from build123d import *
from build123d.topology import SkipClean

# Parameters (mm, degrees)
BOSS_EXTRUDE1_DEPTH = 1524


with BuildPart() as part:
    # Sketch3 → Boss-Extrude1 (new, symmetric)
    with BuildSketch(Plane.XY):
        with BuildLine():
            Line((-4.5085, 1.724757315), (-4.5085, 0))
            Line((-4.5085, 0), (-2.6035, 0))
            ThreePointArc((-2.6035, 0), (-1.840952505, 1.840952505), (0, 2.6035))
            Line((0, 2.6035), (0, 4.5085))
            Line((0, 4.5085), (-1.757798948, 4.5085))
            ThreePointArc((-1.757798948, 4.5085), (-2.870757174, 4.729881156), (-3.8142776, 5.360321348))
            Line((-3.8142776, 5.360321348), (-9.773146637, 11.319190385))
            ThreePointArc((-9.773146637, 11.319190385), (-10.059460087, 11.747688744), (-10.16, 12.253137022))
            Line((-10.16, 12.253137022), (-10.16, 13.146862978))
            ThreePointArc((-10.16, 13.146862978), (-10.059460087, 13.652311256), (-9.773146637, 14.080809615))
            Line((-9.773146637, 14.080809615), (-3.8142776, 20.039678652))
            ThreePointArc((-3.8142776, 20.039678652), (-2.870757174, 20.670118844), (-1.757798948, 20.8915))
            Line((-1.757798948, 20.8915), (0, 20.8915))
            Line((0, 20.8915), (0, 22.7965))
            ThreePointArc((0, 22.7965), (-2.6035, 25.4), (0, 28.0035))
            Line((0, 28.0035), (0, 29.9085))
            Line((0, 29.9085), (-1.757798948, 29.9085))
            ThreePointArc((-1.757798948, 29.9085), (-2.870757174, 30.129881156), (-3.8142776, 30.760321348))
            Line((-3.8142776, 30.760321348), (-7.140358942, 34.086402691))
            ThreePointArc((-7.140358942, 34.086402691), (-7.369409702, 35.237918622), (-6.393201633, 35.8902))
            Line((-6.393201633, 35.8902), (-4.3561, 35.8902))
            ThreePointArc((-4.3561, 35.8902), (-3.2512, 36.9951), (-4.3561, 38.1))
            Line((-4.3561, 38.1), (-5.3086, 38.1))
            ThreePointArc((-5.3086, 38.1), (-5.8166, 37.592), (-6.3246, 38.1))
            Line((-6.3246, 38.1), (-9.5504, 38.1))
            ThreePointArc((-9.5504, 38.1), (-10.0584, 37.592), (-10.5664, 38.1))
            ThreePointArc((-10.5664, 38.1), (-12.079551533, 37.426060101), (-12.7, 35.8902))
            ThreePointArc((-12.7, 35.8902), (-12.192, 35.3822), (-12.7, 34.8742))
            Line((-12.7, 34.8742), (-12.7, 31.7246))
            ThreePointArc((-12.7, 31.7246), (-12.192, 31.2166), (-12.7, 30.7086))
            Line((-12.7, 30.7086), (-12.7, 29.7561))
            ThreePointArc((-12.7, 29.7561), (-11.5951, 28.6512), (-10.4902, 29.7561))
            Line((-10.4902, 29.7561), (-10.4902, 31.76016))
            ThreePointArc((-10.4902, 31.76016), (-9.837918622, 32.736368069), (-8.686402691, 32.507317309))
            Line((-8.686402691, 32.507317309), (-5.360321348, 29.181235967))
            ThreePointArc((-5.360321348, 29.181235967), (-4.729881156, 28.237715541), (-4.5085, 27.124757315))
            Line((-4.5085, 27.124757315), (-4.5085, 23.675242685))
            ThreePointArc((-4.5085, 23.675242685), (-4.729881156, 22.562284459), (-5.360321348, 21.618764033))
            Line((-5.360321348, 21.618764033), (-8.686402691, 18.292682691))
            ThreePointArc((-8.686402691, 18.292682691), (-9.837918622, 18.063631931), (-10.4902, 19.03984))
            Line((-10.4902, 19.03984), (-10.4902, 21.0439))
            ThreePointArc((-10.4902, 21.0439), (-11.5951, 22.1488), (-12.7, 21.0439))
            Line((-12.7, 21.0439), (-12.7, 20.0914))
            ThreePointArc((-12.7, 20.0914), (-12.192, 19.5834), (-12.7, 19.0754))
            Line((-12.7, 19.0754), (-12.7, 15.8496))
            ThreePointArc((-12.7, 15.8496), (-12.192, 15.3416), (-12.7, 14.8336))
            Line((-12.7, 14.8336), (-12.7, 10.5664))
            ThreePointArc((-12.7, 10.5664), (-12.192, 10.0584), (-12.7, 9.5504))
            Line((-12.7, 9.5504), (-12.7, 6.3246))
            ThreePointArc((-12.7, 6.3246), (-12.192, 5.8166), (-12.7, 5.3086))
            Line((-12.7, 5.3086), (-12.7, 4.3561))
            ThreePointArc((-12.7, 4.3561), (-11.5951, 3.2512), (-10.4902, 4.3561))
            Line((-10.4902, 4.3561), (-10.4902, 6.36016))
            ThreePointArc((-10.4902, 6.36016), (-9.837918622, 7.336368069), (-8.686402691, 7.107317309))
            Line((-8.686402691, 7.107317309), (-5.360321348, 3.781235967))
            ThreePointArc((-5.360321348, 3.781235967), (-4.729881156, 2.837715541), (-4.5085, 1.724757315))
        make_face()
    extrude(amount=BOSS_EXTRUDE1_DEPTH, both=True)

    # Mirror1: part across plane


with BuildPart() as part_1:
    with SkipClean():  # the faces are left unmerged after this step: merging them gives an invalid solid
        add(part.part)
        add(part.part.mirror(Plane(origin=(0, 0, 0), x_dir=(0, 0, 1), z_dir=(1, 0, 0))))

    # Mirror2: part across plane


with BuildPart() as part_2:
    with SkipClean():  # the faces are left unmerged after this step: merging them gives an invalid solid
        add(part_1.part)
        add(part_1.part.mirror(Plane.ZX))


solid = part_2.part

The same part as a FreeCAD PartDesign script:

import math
import FreeCAD as App
import Part
import Sketcher

V = App.Vector
Q = App.Units.Quantity

doc = App.newDocument("Part")
body = doc.addObject("PartDesign::Body", "Body")

sketch1 = body.newObject("Sketcher::SketchObject", "Sketch")
sketch1.AttachmentSupport = (doc.getObject("XY_Plane"), [""])
sketch1.MapMode = "FlatFace"
sketch1.addGeometry(Part.LineSegment(V(-4.5085, 1.724757, 0), V(-4.5085, 0, 0)), False)
sketch1.addGeometry(Part.LineSegment(V(-4.5085, 0, 0), V(-2.6035, 0, 0)), False)
sketch1.addGeometry(Part.ArcOfCircle(Part.Circle(V(0, 0, 0), V(0, 0, 1), 2.6035), math.radians(90), math.radians(180)), False)
sketch1.addGeometry(Part.LineSegment(V(0, 2.6035, 0), V(0, 4.5085, 0)), False)
sketch1.addGeometry(Part.LineSegment(V(0, 4.5085, 0), V(-1.757799, 4.5085, 0)), False)
sketch1.addGeometry(Part.ArcOfCircle(Part.Circle(V(-1.757799, 7.4168, 0), V(0, 0, 1), 2.9083), math.radians(-135), math.radians(-90)), False)
sketch1.addGeometry(Part.LineSegment(V(-3.814278, 5.360321, 0), V(-9.773147, 11.31919, 0)), False)
sketch1.addGeometry(Part.ArcOfCircle(Part.Circle(V(-8.8392, 12.253137, 0), V(0, 0, 1), 1.3208), math.radians(180), math.radians(225)), False)
sketch1.addGeometry(Part.LineSegment(V(-10.16, 12.253137, 0), V(-10.16, 13.146863, 0)), False)
sketch1.addGeometry(Part.ArcOfCircle(Part.Circle(V(-8.8392, 13.146863, 0), V(0, 0, 1), 1.3208), math.radians(135), math.radians(180)), False)
sketch1.addGeometry(Part.LineSegment(V(-9.773147, 14.08081, 0), V(-3.814278, 20.039679, 0)), False)
sketch1.addGeometry(Part.ArcOfCircle(Part.Circle(V(-1.757799, 17.9832, 0), V(0, 0, 1), 2.9083), math.radians(90), math.radians(135)), False)
sketch1.addGeometry(Part.LineSegment(V(-1.757799, 20.8915, 0), V(0, 20.8915, 0)), False)
sketch1.addGeometry(Part.LineSegment(V(0, 20.8915, 0), V(0, 22.7965, 0)), False)
sketch1.addGeometry(Part.ArcOfCircle(Part.Circle(V(0, 25.4, 0), V(0, 0, 1), 2.6035), math.radians(90), math.radians(270)), False)
sketch1.addGeometry(Part.LineSegment(V(0, 28.0035, 0), V(0, 29.9085, 0)), False)
sketch1.addGeometry(Part.LineSegment(V(0, 29.9085, 0), V(-1.757799, 29.9085, 0)), False)
sketch1.addGeometry(Part.ArcOfCircle(Part.Circle(V(-1.757799, 32.8168, 0), V(0, 0, 1), 2.9083), math.radians(-135), math.radians(-90)), False)
sketch1.addGeometry(Part.LineSegment(V(-3.814278, 30.760321, 0), V(-7.140359, 34.086403, 0)), False)
sketch1.addGeometry(Part.ArcOfCircle(Part.Circle(V(-6.393202, 34.83356, 0), V(0, 0, 1), 1.05664), math.radians(90), math.radians(225)), False)
sketch1.addGeometry(Part.LineSegment(V(-6.393202, 35.8902, 0), V(-4.3561, 35.8902, 0)), False)
sketch1.addGeometry(Part.ArcOfCircle(Part.Circle(V(-4.3561, 36.9951, 0), V(0, 0, 1), 1.1049), math.radians(-90), math.radians(90)), False)
sketch1.addGeometry(Part.LineSegment(V(-4.3561, 38.1, 0), V(-5.3086, 38.1, 0)), False)
sketch1.addGeometry(Part.ArcOfCircle(Part.Circle(V(-5.8166, 38.1, 0), V(0, 0, 1), 0.508), math.radians(180), math.radians(360)), False)
sketch1.addGeometry(Part.LineSegment(V(-6.3246, 38.1, 0), V(-9.5504, 38.1, 0)), False)
sketch1.addGeometry(Part.ArcOfCircle(Part.Circle(V(-10.0584, 38.1, 0), V(0, 0, 1), 0.508), math.radians(180), math.radians(360)), False)
sketch1.addGeometry(Part.ArcOfCircle(Part.Circle(V(-10.488839, 35.8902, 0), V(0, 0, 1), 2.211161), math.radians(92.010172), math.radians(180)), False)
sketch1.addGeometry(Part.ArcOfCircle(Part.Circle(V(-12.7, 35.3822, 0), V(0, 0, 1), 0.508), math.radians(-90), math.radians(90)), False)
sketch1.addGeometry(Part.LineSegment(V(-12.7, 34.8742, 0), V(-12.7, 31.7246, 0)), False)
sketch1.addGeometry(Part.ArcOfCircle(Part.Circle(V(-12.7, 31.2166, 0), V(0, 0, 1), 0.508), math.radians(-90), math.radians(90)), False)
sketch1.addGeometry(Part.LineSegment(V(-12.7, 30.7086, 0), V(-12.7, 29.7561, 0)), False)
sketch1.addGeometry(Part.ArcOfCircle(Part.Circle(V(-11.5951, 29.7561, 0), V(0, 0, 1), 1.1049), math.radians(180), math.radians(360)), False)
sketch1.addGeometry(Part.LineSegment(V(-10.4902, 29.7561, 0), V(-10.4902, 31.76016, 0)), False)
sketch1.addGeometry(Part.ArcOfCircle(Part.Circle(V(-9.43356, 31.76016, 0), V(0, 0, 1), 1.05664), math.radians(45), math.radians(180)), False)
sketch1.addGeometry(Part.LineSegment(V(-8.686403, 32.507317, 0), V(-5.360321, 29.181236, 0)), False)
sketch1.addGeometry(Part.ArcOfCircle(Part.Circle(V(-7.4168, 27.124757, 0), V(0, 0, 1), 2.9083), math.radians(0), math.radians(45)), False)
sketch1.addGeometry(Part.LineSegment(V(-4.5085, 27.124757, 0), V(-4.5085, 23.675243, 0)), False)
sketch1.addGeometry(Part.ArcOfCircle(Part.Circle(V(-7.4168, 23.675243, 0), V(0, 0, 1), 2.9083), math.radians(-45), math.radians(0)), False)
sketch1.addGeometry(Part.LineSegment(V(-5.360321, 21.618764, 0), V(-8.686403, 18.292683, 0)), False)
sketch1.addGeometry(Part.ArcOfCircle(Part.Circle(V(-9.43356, 19.03984, 0), V(0, 0, 1), 1.05664), math.radians(180), math.radians(315)), False)
sketch1.addGeometry(Part.LineSegment(V(-10.4902, 19.03984, 0), V(-10.4902, 21.0439, 0)), False)
sketch1.addGeometry(Part.ArcOfCircle(Part.Circle(V(-11.5951, 21.0439, 0), V(0, 0, 1), 1.1049), math.radians(0), math.radians(180)), False)
sketch1.addGeometry(Part.LineSegment(V(-12.7, 21.0439, 0), V(-12.7, 20.0914, 0)), False)
sketch1.addGeometry(Part.ArcOfCircle(Part.Circle(V(-12.7, 19.5834, 0), V(0, 0, 1), 0.508), math.radians(-90), math.radians(90)), False)
sketch1.addGeometry(Part.LineSegment(V(-12.7, 19.0754, 0), V(-12.7, 15.8496, 0)), False)
sketch1.addGeometry(Part.ArcOfCircle(Part.Circle(V(-12.7, 15.3416, 0), V(0, 0, 1), 0.508), math.radians(-90), math.radians(90)), False)
sketch1.addGeometry(Part.LineSegment(V(-12.7, 14.8336, 0), V(-12.7, 10.5664, 0)), False)
sketch1.addGeometry(Part.ArcOfCircle(Part.Circle(V(-12.7, 10.0584, 0), V(0, 0, 1), 0.508), math.radians(-90), math.radians(90)), False)
sketch1.addGeometry(Part.LineSegment(V(-12.7, 9.5504, 0), V(-12.7, 6.3246, 0)), False)
sketch1.addGeometry(Part.ArcOfCircle(Part.Circle(V(-12.7, 5.8166, 0), V(0, 0, 1), 0.508), math.radians(-90), math.radians(90)), False)
sketch1.addGeometry(Part.LineSegment(V(-12.7, 5.3086, 0), V(-12.7, 4.3561, 0)), False)
sketch1.addGeometry(Part.ArcOfCircle(Part.Circle(V(-11.5951, 4.3561, 0), V(0, 0, 1), 1.1049), math.radians(180), math.radians(360)), False)
sketch1.addGeometry(Part.LineSegment(V(-10.4902, 4.3561, 0), V(-10.4902, 6.36016, 0)), False)
sketch1.addGeometry(Part.ArcOfCircle(Part.Circle(V(-9.43356, 6.36016, 0), V(0, 0, 1), 1.05664), math.radians(45), math.radians(180)), False)
sketch1.addGeometry(Part.LineSegment(V(-8.686403, 7.107317, 0), V(-5.360321, 3.781236, 0)), False)
sketch1.addGeometry(Part.ArcOfCircle(Part.Circle(V(-7.4168, 1.724757, 0), V(0, 0, 1), 2.9083), math.radians(0), math.radians(45)), False)
sketch1.addConstraint(Sketcher.Constraint("Coincident", 0, 2, 1, 1))
sketch1.addConstraint(Sketcher.Constraint("Coincident", 1, 2, 2, 2))
sketch1.addConstraint(Sketcher.Constraint("Coincident", 2, 1, 3, 1))
sketch1.addConstraint(Sketcher.Constraint("Coincident", 3, 2, 4, 1))
sketch1.addConstraint(Sketcher.Constraint("Tangent", 4, 2, 5, 2))
sketch1.addConstraint(Sketcher.Constraint("Tangent", 5, 1, 6, 1))
sketch1.addConstraint(Sketcher.Constraint("Tangent", 6, 2, 7, 2))
sketch1.addConstraint(Sketcher.Constraint("Tangent", 7, 1, 8, 1))
sketch1.addConstraint(Sketcher.Constraint("Tangent", 8, 2, 9, 2))
sketch1.addConstraint(Sketcher.Constraint("Tangent", 9, 1, 10, 1))
sketch1.addConstraint(Sketcher.Constraint("Tangent", 10, 2, 11, 2))
sketch1.addConstraint(Sketcher.Constraint("Tangent", 11, 1, 12, 1))
sketch1.addConstraint(Sketcher.Constraint("Coincident", 12, 2, 13, 1))
sketch1.addConstraint(Sketcher.Constraint("Coincident", 13, 2, 14, 2))
sketch1.addConstraint(Sketcher.Constraint("Coincident", 14, 1, 15, 1))
sketch1.addConstraint(Sketcher.Constraint("Coincident", 15, 2, 16, 1))
sketch1.addConstraint(Sketcher.Constraint("Tangent", 16, 2, 17, 2))
sketch1.addConstraint(Sketcher.Constraint("Tangent", 17, 1, 18, 1))
sketch1.addConstraint(Sketcher.Constraint("Tangent", 18, 2, 19, 2))
sketch1.addConstraint(Sketcher.Constraint("Tangent", 19, 1, 20, 1))
sketch1.addConstraint(Sketcher.Constraint("Tangent", 20, 2, 21, 1))
sketch1.addConstraint(Sketcher.Constraint("Tangent", 21, 2, 22, 1))
sketch1.addConstraint(Sketcher.Constraint("Coincident", 22, 2, 23, 2))
sketch1.addConstraint(Sketcher.Constraint("Coincident", 23, 1, 24, 1))
sketch1.addConstraint(Sketcher.Constraint("Coincident", 24, 2, 25, 2))
sketch1.addConstraint(Sketcher.Constraint("Coincident", 25, 1, 26, 1))
sketch1.addConstraint(Sketcher.Constraint("Coincident", 26, 2, 27, 2))
sketch1.addConstraint(Sketcher.Constraint("Coincident", 27, 1, 28, 1))
sketch1.addConstraint(Sketcher.Constraint("Coincident", 28, 2, 29, 2))
sketch1.addConstraint(Sketcher.Constraint("Coincident", 29, 1, 30, 1))
sketch1.addConstraint(Sketcher.Constraint("Tangent", 30, 2, 31, 1))
sketch1.addConstraint(Sketcher.Constraint("Tangent", 31, 2, 32, 1))
sketch1.addConstraint(Sketcher.Constraint("Tangent", 32, 2, 33, 2))
sketch1.addConstraint(Sketcher.Constraint("Tangent", 33, 1, 34, 1))
sketch1.addConstraint(Sketcher.Constraint("Tangent", 34, 2, 35, 2))
sketch1.addConstraint(Sketcher.Constraint("Tangent", 35, 1, 36, 1))
sketch1.addConstraint(Sketcher.Constraint("Tangent", 36, 2, 37, 2))
sketch1.addConstraint(Sketcher.Constraint("Tangent", 37, 1, 38, 1))
sketch1.addConstraint(Sketcher.Constraint("Tangent", 38, 2, 39, 2))
sketch1.addConstraint(Sketcher.Constraint("Tangent", 39, 1, 40, 1))
sketch1.addConstraint(Sketcher.Constraint("Tangent", 40, 2, 41, 1))
sketch1.addConstraint(Sketcher.Constraint("Tangent", 41, 2, 42, 1))
sketch1.addConstraint(Sketcher.Constraint("Coincident", 42, 2, 43, 2))
sketch1.addConstraint(Sketcher.Constraint("Coincident", 43, 1, 44, 1))
sketch1.addConstraint(Sketcher.Constraint("Coincident", 44, 2, 45, 2))
sketch1.addConstraint(Sketcher.Constraint("Coincident", 45, 1, 46, 1))
sketch1.addConstraint(Sketcher.Constraint("Coincident", 46, 2, 47, 2))
sketch1.addConstraint(Sketcher.Constraint("Coincident", 47, 1, 48, 1))
sketch1.addConstraint(Sketcher.Constraint("Coincident", 48, 2, 49, 2))
sketch1.addConstraint(Sketcher.Constraint("Coincident", 49, 1, 50, 1))
sketch1.addConstraint(Sketcher.Constraint("Tangent", 50, 2, 51, 1))
sketch1.addConstraint(Sketcher.Constraint("Tangent", 51, 2, 52, 1))
sketch1.addConstraint(Sketcher.Constraint("Tangent", 52, 2, 53, 2))
sketch1.addConstraint(Sketcher.Constraint("Tangent", 53, 1, 54, 1))
sketch1.addConstraint(Sketcher.Constraint("Tangent", 54, 2, 55, 2))
sketch1.addConstraint(Sketcher.Constraint("Tangent", 55, 1, 0, 1))
sketch1.addConstraint(Sketcher.Constraint("Vertical", 0))
sketch1.addConstraint(Sketcher.Constraint("Horizontal", 1))
sketch1.addConstraint(Sketcher.Constraint("Vertical", 3))
sketch1.addConstraint(Sketcher.Constraint("Horizontal", 4))
sketch1.addConstraint(Sketcher.Constraint("Vertical", 8))
sketch1.addConstraint(Sketcher.Constraint("Horizontal", 12))
sketch1.addConstraint(Sketcher.Constraint("Vertical", 13))
sketch1.addConstraint(Sketcher.Constraint("Vertical", 15))
sketch1.addConstraint(Sketcher.Constraint("Horizontal", 16))
sketch1.addConstraint(Sketcher.Constraint("Horizontal", 20))
sketch1.addConstraint(Sketcher.Constraint("Horizontal", 22))
sketch1.addConstraint(Sketcher.Constraint("Horizontal", 24))
sketch1.addConstraint(Sketcher.Constraint("Vertical", 28))
sketch1.addConstraint(Sketcher.Constraint("Vertical", 30))
sketch1.addConstraint(Sketcher.Constraint("Vertical", 32))
sketch1.addConstraint(Sketcher.Constraint("Vertical", 36))
sketch1.addConstraint(Sketcher.Constraint("Vertical", 40))
sketch1.addConstraint(Sketcher.Constraint("Vertical", 42))
sketch1.addConstraint(Sketcher.Constraint("Vertical", 44))
sketch1.addConstraint(Sketcher.Constraint("Vertical", 46))
sketch1.addConstraint(Sketcher.Constraint("Vertical", 48))
sketch1.addConstraint(Sketcher.Constraint("Vertical", 50))
sketch1.addConstraint(Sketcher.Constraint("Vertical", 52))
sketch1.addConstraint(Sketcher.Constraint("Coincident", 2, 3, -1, 1))
sketch1.addConstraint(Sketcher.Constraint("Equal", 7, 9))
sketch1.addConstraint(Sketcher.Constraint("Equal", 5, 11))
sketch1.addConstraint(Sketcher.Constraint("Equal", 2, 14))
sketch1.addConstraint(Sketcher.Constraint("Equal", 11, 17))
sketch1.addConstraint(Sketcher.Constraint("Equal", 23, 25))
sketch1.addConstraint(Sketcher.Constraint("Equal", 25, 27))
sketch1.addConstraint(Sketcher.Constraint("Equal", 27, 29))
sketch1.addConstraint(Sketcher.Constraint("Equal", 21, 31))
sketch1.addConstraint(Sketcher.Constraint("Equal", 19, 33))
sketch1.addConstraint(Sketcher.Constraint("Equal", 17, 35))
sketch1.addConstraint(Sketcher.Constraint("Equal", 35, 37))
sketch1.addConstraint(Sketcher.Constraint("Equal", 33, 39))
sketch1.addConstraint(Sketcher.Constraint("Equal", 31, 41))
sketch1.addConstraint(Sketcher.Constraint("Equal", 29, 43))
sketch1.addConstraint(Sketcher.Constraint("Equal", 43, 45))
sketch1.addConstraint(Sketcher.Constraint("Equal", 45, 47))
sketch1.addConstraint(Sketcher.Constraint("Equal", 47, 49))
sketch1.addConstraint(Sketcher.Constraint("Equal", 41, 51))
sketch1.addConstraint(Sketcher.Constraint("Equal", 39, 53))
sketch1.addConstraint(Sketcher.Constraint("Equal", 37, 55))
sketch1.addConstraint(Sketcher.Constraint("PointOnObject", 14, 3, -2))
sketch1.addConstraint(Sketcher.Constraint("PointOnObject", 0, 2, -1))
sketch1.addConstraint(Sketcher.Constraint("PointOnObject", 2, 1, -2))
sketch1.addConstraint(Sketcher.Constraint("PointOnObject", 12, 2, -2))
sketch1.addConstraint(Sketcher.Constraint("PointOnObject", 14, 1, -2))
sketch1.addConstraint(Sketcher.Constraint("Perpendicular", 6, 10))
sketch1.addConstraint(Sketcher.Constraint("Perpendicular", 10, 18))
sketch1.addConstraint(Sketcher.Constraint("Parallel", 18, 34))
sketch1.addConstraint(Sketcher.Constraint("Perpendicular", 34, 38))
sketch1.addConstraint(Sketcher.Constraint("Perpendicular", 38, 54))
sketch1.addConstraint(Sketcher.Constraint("Horizontal", 23, 3, 25, 3))
sketch1.addConstraint(Sketcher.Constraint("Horizontal", 26, 3, 19, 1))
sketch1.addConstraint(Sketcher.Constraint("Horizontal", 25, 3, 21, 2))
sketch1.addConstraint(Sketcher.Constraint("Horizontal", 22, 2, 23, 1))
sketch1.addConstraint(Sketcher.Constraint("Horizontal", 24, 2, 25, 1))
sketch1.addConstraint(Sketcher.Constraint("Horizontal", 20, 2, 26, 2))
sketch1.addConstraint(Sketcher.Constraint("Vertical", 5, 3, 11, 3))
sketch1.addConstraint(Sketcher.Constraint("Vertical", 11, 3, 17, 3))
sketch1.addConstraint(Sketcher.Constraint("Vertical", 27, 3, 29, 3))
sketch1.addConstraint(Sketcher.Constraint("Vertical", 33, 3, 39, 3))
sketch1.addConstraint(Sketcher.Constraint("Vertical", 29, 3, 43, 3))
sketch1.addConstraint(Sketcher.Constraint("Vertical", 43, 3, 45, 3))
sketch1.addConstraint(Sketcher.Constraint("Vertical", 45, 3, 47, 3))
sketch1.addConstraint(Sketcher.Constraint("Vertical", 47, 3, 49, 3))
sketch1.addConstraint(Sketcher.Constraint("Vertical", 41, 3, 51, 3))
sketch1.addConstraint(Sketcher.Constraint("Vertical", 37, 3, 55, 3))
sketch1.addConstraint(Sketcher.Constraint("Vertical", 6, 2, 9, 1))
sketch1.addConstraint(Sketcher.Constraint("Vertical", 49, 3, 26, 2))
sketch1.addConstraint(Sketcher.Constraint("Vertical", 26, 2, 27, 1))
sketch1.addConstraint(Sketcher.Constraint("Vertical", 28, 2, 29, 1))
sketch1.addConstraint(Sketcher.Constraint("Vertical", 42, 2, 43, 1))
sketch1.addConstraint(Sketcher.Constraint("Vertical", 44, 2, 45, 1))
sketch1.addConstraint(Sketcher.Constraint("Vertical", 46, 2, 47, 1))
sketch1.addConstraint(Sketcher.Constraint("Equal", 1, 3))
sketch1.addConstraint(Sketcher.Constraint("Equal", 3, 13))
sketch1.addConstraint(Sketcher.Constraint("Equal", 13, 15))
sketch1.addConstraint(Sketcher.Constraint("Equal", 22, 30))
sketch1.addConstraint(Sketcher.Constraint("Equal", 32, 40))
sketch1.addConstraint(Sketcher.Constraint("Equal", 30, 42))
sketch1.addConstraint(Sketcher.Constraint("Equal", 24, 44))
sketch1.addConstraint(Sketcher.Constraint("Equal", 44, 48))
sketch1.addConstraint(Sketcher.Constraint("Equal", 42, 50))
sketch1.addConstraint(Sketcher.Constraint("Equal", 40, 52))
sketch1.addConstraint(Sketcher.Constraint("Equal", 18, 34))
sketch1.addConstraint(Sketcher.Constraint("Radius", 23, Q("0.02 in")))
sketch1.addConstraint(Sketcher.Constraint("DistanceY", -1, 1, 14, 3, Q("1 in")))
sketch1.addConstraint(Sketcher.Constraint("Radius", 7, Q("0.052 in")))
sketch1.addConstraint(Sketcher.Constraint("DistanceY", -1, 1, 23, 3, Q("1.5 in")))
sketch1.addConstraint(Sketcher.Constraint("DistanceX", 7, 1, -1, 1, Q("0.4 in")))
sketch1.addConstraint(Sketcher.Constraint("Radius", 2, Q("0.1025 in")))
sketch1.addConstraint(Sketcher.Constraint("Radius", 5, Q("0.1145 in")))
sketch1.addConstraint(Sketcher.Constraint("Radius", 19, Q("0.0416 in")))
sketch1.addConstraint(Sketcher.Constraint("Radius", 21, Q("0.0435 in")))
sketch1.addConstraint(Sketcher.Constraint("DistanceX", 1, 1, 1, 2, Q("0.075 in")))
sketch1.addConstraint(Sketcher.Constraint("DistanceX", 24, 2, 24, 1, Q("0.127 in")))
sketch1.addConstraint(Sketcher.Constraint("DistanceY", 28, 2, 28, 1, Q("0.124 in")))
sketch1.addConstraint(Sketcher.Constraint("DistanceY", 46, 2, 46, 1, Q("0.168 in")))
sketch1.addConstraint(Sketcher.Constraint("DistanceX", 22, 2, 22, 1, Q("0.0375 in")))
sketch1.addConstraint(Sketcher.Constraint("DistanceY", 32, 1, 32, 2, Q("0.0789 in")))
sketch1.addConstraint(Sketcher.Constraint("DistanceX", 23, 3, -1, 1, Q("0.229 in")))
sketch1.addConstraint(Sketcher.Constraint("DistanceY", -1, 1, 43, 3, Q("0.771 in")))
sketch1.addConstraint(Sketcher.Constraint("DistanceX", 4, 2, 4, 1, 1.757799))
pad1 = body.newObject("PartDesign::Pad", "Pad")
pad1.Profile = sketch1
pad1.Length = Q("120 in")
pad1.Midplane = True
body2 = doc.addObject("PartDesign::Body", "Body001")
doc.recompute()

body2.BaseFeature = body
doc.recompute()

mirroring = doc.addObject("Part::Mirroring", "Mirroring")
mirroring.Source = body
mirroring.Base = V(0, 0, 0)
mirroring.Normal = V(1, 0, 0)
body3 = doc.addObject("PartDesign::Body", "Body002")
body3.BaseFeature = mirroring
boolean = body2.newObject("PartDesign::Boolean", "Boolean")
boolean.Type = "Fuse"
boolean.addObjects([body3])
doc.recompute()
body4 = doc.addObject("PartDesign::Body", "Body003")
doc.recompute()

body4.BaseFeature = body2
doc.recompute()

mirroring2 = doc.addObject("Part::Mirroring", "Mirroring001")
mirroring2.Source = body2
mirroring2.Base = V(0, 0, 0)
mirroring2.Normal = V(0, 1, 0)
body5 = doc.addObject("PartDesign::Body", "Body004")
body5.BaseFeature = mirroring2
boolean2 = body4.newObject("PartDesign::Boolean", "Boolean001")
boolean2.Type = "Fuse"
boolean2.addObjects([body5])
doc.recompute()
mirroring.Visibility = False
mirroring2.Visibility = False

doc.recompute()
